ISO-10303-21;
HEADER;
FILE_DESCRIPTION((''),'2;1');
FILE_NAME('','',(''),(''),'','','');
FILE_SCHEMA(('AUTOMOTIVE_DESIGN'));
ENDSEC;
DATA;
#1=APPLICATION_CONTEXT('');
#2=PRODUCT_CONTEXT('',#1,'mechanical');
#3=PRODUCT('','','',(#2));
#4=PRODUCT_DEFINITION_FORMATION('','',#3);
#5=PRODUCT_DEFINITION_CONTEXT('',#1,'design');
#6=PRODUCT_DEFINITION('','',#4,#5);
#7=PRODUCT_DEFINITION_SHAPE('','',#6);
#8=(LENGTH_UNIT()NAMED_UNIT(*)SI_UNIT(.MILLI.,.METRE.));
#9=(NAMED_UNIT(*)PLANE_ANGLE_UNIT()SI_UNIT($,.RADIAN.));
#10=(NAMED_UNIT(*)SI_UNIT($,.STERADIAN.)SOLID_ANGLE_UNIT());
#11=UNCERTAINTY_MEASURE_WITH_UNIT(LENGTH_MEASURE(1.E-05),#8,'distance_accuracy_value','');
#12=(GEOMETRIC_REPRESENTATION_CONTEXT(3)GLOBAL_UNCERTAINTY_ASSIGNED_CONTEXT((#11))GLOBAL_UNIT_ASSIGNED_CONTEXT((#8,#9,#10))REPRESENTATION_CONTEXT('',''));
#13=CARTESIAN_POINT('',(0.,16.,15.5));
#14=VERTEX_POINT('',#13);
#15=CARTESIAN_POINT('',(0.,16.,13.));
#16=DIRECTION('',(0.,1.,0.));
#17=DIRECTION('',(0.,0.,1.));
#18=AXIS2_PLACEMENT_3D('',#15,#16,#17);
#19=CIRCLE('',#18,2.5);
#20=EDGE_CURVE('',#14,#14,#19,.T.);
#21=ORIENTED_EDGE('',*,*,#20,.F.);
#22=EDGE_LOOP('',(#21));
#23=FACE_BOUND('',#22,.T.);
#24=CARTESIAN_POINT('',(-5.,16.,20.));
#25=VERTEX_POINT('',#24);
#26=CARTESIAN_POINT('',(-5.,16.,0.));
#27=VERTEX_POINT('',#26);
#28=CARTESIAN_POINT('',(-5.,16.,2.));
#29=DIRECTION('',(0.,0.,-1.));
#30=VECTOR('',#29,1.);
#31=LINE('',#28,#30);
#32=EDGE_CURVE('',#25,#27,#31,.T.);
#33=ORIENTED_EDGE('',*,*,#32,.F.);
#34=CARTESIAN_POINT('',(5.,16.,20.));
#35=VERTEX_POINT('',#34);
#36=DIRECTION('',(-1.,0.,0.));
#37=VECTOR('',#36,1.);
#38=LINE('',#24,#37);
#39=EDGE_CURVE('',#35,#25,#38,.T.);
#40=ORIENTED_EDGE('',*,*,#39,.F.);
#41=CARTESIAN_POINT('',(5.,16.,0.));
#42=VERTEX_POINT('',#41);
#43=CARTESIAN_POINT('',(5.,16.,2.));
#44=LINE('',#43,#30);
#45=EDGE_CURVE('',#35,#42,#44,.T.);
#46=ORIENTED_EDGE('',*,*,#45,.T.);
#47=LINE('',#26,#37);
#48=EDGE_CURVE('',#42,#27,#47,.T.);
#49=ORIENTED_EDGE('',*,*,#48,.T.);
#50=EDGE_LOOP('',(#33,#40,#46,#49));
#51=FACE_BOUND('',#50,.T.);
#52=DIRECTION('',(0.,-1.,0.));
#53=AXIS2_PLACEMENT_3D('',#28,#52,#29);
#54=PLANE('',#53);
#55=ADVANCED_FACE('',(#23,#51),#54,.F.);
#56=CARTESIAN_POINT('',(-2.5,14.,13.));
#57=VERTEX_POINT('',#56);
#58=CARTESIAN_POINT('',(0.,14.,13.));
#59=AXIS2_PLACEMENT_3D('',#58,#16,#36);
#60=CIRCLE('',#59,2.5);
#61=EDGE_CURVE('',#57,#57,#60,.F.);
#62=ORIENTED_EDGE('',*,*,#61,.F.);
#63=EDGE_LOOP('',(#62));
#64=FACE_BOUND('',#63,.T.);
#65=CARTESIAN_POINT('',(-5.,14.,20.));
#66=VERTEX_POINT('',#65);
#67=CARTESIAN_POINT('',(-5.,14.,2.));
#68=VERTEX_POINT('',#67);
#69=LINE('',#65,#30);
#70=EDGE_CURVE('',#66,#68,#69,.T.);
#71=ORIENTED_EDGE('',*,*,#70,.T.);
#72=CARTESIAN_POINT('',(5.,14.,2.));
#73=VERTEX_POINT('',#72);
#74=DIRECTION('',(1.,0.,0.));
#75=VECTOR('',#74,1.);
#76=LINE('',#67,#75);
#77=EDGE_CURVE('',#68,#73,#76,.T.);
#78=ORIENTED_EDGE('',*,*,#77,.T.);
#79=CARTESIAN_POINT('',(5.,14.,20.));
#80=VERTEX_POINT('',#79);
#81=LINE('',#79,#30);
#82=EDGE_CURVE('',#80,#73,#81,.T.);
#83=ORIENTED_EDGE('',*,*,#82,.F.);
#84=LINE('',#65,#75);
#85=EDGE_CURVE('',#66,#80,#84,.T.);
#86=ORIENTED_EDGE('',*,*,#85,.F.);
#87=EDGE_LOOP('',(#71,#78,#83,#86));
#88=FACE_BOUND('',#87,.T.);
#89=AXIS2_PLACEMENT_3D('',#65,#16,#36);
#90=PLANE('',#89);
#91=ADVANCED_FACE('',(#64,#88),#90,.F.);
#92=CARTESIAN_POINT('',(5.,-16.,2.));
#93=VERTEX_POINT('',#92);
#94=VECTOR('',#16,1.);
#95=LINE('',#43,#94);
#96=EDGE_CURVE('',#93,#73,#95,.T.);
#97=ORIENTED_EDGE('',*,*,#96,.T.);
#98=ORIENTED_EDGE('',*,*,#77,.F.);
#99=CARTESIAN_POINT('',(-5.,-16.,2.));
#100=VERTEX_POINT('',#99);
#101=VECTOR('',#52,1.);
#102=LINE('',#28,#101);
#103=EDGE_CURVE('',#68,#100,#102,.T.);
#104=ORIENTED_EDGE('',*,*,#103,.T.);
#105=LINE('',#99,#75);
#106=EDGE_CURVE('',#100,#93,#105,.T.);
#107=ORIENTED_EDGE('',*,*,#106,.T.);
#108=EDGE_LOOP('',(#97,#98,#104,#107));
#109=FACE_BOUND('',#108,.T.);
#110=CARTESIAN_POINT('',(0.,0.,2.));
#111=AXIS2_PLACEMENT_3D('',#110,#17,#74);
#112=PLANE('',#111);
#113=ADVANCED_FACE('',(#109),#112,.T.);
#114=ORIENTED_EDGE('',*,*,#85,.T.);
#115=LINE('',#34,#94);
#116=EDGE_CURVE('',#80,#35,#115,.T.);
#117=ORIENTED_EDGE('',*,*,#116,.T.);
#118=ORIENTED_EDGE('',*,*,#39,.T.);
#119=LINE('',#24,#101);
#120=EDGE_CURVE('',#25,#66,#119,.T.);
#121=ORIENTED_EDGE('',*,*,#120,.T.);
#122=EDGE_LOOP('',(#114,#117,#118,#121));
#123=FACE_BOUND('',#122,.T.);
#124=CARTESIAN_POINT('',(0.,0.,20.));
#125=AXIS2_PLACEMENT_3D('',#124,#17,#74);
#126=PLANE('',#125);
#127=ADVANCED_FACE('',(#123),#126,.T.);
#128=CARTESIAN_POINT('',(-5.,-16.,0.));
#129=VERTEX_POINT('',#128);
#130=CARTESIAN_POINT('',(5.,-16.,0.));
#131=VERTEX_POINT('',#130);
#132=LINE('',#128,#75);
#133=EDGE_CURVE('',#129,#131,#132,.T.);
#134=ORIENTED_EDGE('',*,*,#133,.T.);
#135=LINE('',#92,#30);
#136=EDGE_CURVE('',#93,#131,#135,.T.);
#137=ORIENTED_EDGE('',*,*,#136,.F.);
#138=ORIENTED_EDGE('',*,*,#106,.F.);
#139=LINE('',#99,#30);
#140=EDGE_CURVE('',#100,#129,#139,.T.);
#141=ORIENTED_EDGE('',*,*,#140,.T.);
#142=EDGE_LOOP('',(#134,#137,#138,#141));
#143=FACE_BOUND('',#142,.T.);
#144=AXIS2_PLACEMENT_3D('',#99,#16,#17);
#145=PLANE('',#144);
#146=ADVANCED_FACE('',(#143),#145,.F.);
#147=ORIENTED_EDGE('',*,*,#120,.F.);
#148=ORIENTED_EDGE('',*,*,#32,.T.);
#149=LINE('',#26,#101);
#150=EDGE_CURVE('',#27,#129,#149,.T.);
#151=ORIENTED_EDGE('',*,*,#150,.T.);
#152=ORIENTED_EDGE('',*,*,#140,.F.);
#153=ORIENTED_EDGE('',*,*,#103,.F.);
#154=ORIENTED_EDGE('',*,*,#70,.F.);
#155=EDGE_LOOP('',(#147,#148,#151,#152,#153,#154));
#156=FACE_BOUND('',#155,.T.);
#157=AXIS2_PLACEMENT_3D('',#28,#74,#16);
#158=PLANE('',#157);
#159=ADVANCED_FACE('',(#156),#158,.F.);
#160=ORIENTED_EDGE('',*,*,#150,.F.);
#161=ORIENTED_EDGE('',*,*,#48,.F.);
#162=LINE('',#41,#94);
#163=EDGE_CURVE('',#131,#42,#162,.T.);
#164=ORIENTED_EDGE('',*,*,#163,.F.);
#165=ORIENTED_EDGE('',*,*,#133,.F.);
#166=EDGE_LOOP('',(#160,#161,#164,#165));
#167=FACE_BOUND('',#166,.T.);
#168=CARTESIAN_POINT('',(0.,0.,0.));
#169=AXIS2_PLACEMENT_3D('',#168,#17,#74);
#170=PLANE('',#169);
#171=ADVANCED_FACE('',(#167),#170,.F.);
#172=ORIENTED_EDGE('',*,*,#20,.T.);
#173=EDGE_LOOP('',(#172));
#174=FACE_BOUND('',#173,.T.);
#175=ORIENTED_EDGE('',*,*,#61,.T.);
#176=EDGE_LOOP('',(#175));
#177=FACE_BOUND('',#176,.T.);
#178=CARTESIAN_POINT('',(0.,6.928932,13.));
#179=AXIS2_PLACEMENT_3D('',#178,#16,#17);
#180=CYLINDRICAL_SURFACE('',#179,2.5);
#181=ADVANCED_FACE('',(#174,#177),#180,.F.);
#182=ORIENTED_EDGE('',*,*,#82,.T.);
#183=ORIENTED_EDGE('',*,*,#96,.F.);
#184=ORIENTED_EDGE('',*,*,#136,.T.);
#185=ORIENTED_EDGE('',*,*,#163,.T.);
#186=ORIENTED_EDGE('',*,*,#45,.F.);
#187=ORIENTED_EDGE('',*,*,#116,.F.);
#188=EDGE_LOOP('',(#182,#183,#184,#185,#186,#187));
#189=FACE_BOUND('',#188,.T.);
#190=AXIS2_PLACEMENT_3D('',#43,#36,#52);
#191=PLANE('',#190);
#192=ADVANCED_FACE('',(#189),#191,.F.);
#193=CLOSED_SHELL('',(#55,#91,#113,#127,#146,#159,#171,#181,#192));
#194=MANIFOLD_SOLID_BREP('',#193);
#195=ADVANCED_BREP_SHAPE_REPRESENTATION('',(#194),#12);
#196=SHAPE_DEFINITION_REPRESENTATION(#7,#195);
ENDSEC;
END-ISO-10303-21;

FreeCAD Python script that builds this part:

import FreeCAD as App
import Part
import Sketcher
Q = App.Units.Quantity

doc = App.newDocument("Part")
params = doc.addObject("Spreadsheet::Sheet", "Params")
for row, (alias, value) in enumerate([
    ("sketch1_width", "10 mm"),
    ("sketch1_height", "32 mm"),
    ("pad1_length", "2 mm"),
    ("sketch2_width", "10 mm"),
    ("sketch2_height", "2 mm"),
    ("pad2_length", "18 mm"),
    ("sketch3_diameter", "5 mm"),
    ("pocket1_length", "2 mm"),
], start=1):
    params.set(f"A{row}", alias)
    params.set(f"B{row}", "=" + value)
    params.setAlias(f"B{row}", alias)

body = doc.addObject("PartDesign::Body", "Body")

sketch1 = body.newObject("Sketcher::SketchObject", "Sketch")
sketch1.AttachmentSupport = (doc.getObject("XY_Plane"), [""])
sketch1.MapMode = "FlatFace"
sketch1.addGeometry([
    Part.LineSegment(App.Vector(-5, 16, 0), App.Vector(-5, -16, 0)),
    Part.LineSegment(App.Vector(-5, -16, 0), App.Vector(5, -16, 0)),
    Part.LineSegment(App.Vector(5, -16, 0), App.Vector(5, 16, 0)),
    Part.LineSegment(App.Vector(5, 16, 0), App.Vector(-5, 16, 0)),
], False)
sketch1.addConstraint([
    Sketcher.Constraint("Coincident", 0, 2, 1, 1),
    Sketcher.Constraint("Coincident", 1, 2, 2, 1),
    Sketcher.Constraint("Coincident", 2, 2, 3, 1),
    Sketcher.Constraint("Coincident", 3, 2, 0, 1),
    Sketcher.Constraint("Vertical", 0),
    Sketcher.Constraint("Horizontal", 1),
    Sketcher.Constraint("Vertical", 2),
    Sketcher.Constraint("Horizontal", 3),
    Sketcher.Constraint("Symmetric", 0, 2, 2, 2, -1, 1),
    Sketcher.Constraint("DistanceX", 1, 1, 1, 2, Q("10 mm")),
    Sketcher.Constraint("DistanceY", 0, 2, 0, 1, Q("32 mm")),
])
sketch1.setExpression("Constraints[9]", "Params.sketch1_width")
sketch1.setExpression("Constraints[10]", "Params.sketch1_height")
pad1 = body.newObject("PartDesign::Pad", "Pad")
pad1.Profile = sketch1
pad1.setExpression("Length", "Params.pad1_length")

sketch2 = body.newObject("Sketcher::SketchObject", "Sketch001")
sketch2.AttachmentSupport = (doc.getObject("XY_Plane"), [""])
sketch2.MapMode = "FlatFace"
sketch2.AttachmentOffset = App.Placement(App.Vector(0, 0, 2), App.Rotation())
sketch2.addGeometry([
    Part.LineSegment(App.Vector(-5, 16, 0), App.Vector(-5, 14, 0)),
    Part.LineSegment(App.Vector(-5, 14, 0), App.Vector(5, 14, 0)),
    Part.LineSegment(App.Vector(5, 14, 0), App.Vector(5, 16, 0)),
    Part.LineSegment(App.Vector(5, 16, 0), App.Vector(-5, 16, 0)),
], False)
sketch2.addConstraint([
    Sketcher.Constraint("Coincident", 0, 2, 1, 1),
    Sketcher.Constraint("Coincident", 1, 2, 2, 1),
    Sketcher.Constraint("Coincident", 2, 2, 3, 1),
    Sketcher.Constraint("Coincident", 3, 2, 0, 1),
    Sketcher.Constraint("Vertical", 0),
    Sketcher.Constraint("Horizontal", 1),
    Sketcher.Constraint("Vertical", 2),
    Sketcher.Constraint("Horizontal", 3),
    Sketcher.Constraint("DistanceX", 1, 1, 1, 2, Q("10 mm")),
    Sketcher.Constraint("DistanceY", 0, 2, 0, 1, Q("2 mm")),
    Sketcher.Constraint("DistanceX", 0, 2, -1, 1, Q("5 mm")),
    Sketcher.Constraint("DistanceY", -1, 1, 0, 2, Q("14 mm")),
])
sketch2.setExpression("Constraints[8]", "Params.sketch2_width")
sketch2.setExpression("Constraints[9]", "Params.sketch2_height")
pad2 = body.newObject("PartDesign::Pad", "Pad001")
pad2.Profile = sketch2
pad2.setExpression("Length", "Params.pad2_length")

sketch3 = body.newObject("Sketcher::SketchObject", "Sketch002")
sketch3.AttachmentSupport = (doc.getObject("XZ_Plane"), [""])
sketch3.MapMode = "FlatFace"
sketch3.AttachmentOffset = App.Placement(App.Vector(0, 0, -16), App.Rotation())
sketch3.addGeometry(Part.Circle(App.Vector(0, 13, 0), App.Vector(0, 0, 1), 2.5), False)
sketch3.addConstraint([
    Sketcher.Constraint("PointOnObject", 0, 3, -2),
    Sketcher.Constraint("Diameter", 0, Q("5 mm")),
    Sketcher.Constraint("DistanceY", -1, 1, 0, 3, Q("13 mm")),
])
sketch3.setExpression("Constraints[1]", "Params.sketch3_diameter")
pocket1 = body.newObject("PartDesign::Pocket", "Pocket")
pocket1.Profile = sketch3
pocket1.setExpression("Length", "Params.pocket1_length")
pocket1.Reversed = True

doc.recompute()
